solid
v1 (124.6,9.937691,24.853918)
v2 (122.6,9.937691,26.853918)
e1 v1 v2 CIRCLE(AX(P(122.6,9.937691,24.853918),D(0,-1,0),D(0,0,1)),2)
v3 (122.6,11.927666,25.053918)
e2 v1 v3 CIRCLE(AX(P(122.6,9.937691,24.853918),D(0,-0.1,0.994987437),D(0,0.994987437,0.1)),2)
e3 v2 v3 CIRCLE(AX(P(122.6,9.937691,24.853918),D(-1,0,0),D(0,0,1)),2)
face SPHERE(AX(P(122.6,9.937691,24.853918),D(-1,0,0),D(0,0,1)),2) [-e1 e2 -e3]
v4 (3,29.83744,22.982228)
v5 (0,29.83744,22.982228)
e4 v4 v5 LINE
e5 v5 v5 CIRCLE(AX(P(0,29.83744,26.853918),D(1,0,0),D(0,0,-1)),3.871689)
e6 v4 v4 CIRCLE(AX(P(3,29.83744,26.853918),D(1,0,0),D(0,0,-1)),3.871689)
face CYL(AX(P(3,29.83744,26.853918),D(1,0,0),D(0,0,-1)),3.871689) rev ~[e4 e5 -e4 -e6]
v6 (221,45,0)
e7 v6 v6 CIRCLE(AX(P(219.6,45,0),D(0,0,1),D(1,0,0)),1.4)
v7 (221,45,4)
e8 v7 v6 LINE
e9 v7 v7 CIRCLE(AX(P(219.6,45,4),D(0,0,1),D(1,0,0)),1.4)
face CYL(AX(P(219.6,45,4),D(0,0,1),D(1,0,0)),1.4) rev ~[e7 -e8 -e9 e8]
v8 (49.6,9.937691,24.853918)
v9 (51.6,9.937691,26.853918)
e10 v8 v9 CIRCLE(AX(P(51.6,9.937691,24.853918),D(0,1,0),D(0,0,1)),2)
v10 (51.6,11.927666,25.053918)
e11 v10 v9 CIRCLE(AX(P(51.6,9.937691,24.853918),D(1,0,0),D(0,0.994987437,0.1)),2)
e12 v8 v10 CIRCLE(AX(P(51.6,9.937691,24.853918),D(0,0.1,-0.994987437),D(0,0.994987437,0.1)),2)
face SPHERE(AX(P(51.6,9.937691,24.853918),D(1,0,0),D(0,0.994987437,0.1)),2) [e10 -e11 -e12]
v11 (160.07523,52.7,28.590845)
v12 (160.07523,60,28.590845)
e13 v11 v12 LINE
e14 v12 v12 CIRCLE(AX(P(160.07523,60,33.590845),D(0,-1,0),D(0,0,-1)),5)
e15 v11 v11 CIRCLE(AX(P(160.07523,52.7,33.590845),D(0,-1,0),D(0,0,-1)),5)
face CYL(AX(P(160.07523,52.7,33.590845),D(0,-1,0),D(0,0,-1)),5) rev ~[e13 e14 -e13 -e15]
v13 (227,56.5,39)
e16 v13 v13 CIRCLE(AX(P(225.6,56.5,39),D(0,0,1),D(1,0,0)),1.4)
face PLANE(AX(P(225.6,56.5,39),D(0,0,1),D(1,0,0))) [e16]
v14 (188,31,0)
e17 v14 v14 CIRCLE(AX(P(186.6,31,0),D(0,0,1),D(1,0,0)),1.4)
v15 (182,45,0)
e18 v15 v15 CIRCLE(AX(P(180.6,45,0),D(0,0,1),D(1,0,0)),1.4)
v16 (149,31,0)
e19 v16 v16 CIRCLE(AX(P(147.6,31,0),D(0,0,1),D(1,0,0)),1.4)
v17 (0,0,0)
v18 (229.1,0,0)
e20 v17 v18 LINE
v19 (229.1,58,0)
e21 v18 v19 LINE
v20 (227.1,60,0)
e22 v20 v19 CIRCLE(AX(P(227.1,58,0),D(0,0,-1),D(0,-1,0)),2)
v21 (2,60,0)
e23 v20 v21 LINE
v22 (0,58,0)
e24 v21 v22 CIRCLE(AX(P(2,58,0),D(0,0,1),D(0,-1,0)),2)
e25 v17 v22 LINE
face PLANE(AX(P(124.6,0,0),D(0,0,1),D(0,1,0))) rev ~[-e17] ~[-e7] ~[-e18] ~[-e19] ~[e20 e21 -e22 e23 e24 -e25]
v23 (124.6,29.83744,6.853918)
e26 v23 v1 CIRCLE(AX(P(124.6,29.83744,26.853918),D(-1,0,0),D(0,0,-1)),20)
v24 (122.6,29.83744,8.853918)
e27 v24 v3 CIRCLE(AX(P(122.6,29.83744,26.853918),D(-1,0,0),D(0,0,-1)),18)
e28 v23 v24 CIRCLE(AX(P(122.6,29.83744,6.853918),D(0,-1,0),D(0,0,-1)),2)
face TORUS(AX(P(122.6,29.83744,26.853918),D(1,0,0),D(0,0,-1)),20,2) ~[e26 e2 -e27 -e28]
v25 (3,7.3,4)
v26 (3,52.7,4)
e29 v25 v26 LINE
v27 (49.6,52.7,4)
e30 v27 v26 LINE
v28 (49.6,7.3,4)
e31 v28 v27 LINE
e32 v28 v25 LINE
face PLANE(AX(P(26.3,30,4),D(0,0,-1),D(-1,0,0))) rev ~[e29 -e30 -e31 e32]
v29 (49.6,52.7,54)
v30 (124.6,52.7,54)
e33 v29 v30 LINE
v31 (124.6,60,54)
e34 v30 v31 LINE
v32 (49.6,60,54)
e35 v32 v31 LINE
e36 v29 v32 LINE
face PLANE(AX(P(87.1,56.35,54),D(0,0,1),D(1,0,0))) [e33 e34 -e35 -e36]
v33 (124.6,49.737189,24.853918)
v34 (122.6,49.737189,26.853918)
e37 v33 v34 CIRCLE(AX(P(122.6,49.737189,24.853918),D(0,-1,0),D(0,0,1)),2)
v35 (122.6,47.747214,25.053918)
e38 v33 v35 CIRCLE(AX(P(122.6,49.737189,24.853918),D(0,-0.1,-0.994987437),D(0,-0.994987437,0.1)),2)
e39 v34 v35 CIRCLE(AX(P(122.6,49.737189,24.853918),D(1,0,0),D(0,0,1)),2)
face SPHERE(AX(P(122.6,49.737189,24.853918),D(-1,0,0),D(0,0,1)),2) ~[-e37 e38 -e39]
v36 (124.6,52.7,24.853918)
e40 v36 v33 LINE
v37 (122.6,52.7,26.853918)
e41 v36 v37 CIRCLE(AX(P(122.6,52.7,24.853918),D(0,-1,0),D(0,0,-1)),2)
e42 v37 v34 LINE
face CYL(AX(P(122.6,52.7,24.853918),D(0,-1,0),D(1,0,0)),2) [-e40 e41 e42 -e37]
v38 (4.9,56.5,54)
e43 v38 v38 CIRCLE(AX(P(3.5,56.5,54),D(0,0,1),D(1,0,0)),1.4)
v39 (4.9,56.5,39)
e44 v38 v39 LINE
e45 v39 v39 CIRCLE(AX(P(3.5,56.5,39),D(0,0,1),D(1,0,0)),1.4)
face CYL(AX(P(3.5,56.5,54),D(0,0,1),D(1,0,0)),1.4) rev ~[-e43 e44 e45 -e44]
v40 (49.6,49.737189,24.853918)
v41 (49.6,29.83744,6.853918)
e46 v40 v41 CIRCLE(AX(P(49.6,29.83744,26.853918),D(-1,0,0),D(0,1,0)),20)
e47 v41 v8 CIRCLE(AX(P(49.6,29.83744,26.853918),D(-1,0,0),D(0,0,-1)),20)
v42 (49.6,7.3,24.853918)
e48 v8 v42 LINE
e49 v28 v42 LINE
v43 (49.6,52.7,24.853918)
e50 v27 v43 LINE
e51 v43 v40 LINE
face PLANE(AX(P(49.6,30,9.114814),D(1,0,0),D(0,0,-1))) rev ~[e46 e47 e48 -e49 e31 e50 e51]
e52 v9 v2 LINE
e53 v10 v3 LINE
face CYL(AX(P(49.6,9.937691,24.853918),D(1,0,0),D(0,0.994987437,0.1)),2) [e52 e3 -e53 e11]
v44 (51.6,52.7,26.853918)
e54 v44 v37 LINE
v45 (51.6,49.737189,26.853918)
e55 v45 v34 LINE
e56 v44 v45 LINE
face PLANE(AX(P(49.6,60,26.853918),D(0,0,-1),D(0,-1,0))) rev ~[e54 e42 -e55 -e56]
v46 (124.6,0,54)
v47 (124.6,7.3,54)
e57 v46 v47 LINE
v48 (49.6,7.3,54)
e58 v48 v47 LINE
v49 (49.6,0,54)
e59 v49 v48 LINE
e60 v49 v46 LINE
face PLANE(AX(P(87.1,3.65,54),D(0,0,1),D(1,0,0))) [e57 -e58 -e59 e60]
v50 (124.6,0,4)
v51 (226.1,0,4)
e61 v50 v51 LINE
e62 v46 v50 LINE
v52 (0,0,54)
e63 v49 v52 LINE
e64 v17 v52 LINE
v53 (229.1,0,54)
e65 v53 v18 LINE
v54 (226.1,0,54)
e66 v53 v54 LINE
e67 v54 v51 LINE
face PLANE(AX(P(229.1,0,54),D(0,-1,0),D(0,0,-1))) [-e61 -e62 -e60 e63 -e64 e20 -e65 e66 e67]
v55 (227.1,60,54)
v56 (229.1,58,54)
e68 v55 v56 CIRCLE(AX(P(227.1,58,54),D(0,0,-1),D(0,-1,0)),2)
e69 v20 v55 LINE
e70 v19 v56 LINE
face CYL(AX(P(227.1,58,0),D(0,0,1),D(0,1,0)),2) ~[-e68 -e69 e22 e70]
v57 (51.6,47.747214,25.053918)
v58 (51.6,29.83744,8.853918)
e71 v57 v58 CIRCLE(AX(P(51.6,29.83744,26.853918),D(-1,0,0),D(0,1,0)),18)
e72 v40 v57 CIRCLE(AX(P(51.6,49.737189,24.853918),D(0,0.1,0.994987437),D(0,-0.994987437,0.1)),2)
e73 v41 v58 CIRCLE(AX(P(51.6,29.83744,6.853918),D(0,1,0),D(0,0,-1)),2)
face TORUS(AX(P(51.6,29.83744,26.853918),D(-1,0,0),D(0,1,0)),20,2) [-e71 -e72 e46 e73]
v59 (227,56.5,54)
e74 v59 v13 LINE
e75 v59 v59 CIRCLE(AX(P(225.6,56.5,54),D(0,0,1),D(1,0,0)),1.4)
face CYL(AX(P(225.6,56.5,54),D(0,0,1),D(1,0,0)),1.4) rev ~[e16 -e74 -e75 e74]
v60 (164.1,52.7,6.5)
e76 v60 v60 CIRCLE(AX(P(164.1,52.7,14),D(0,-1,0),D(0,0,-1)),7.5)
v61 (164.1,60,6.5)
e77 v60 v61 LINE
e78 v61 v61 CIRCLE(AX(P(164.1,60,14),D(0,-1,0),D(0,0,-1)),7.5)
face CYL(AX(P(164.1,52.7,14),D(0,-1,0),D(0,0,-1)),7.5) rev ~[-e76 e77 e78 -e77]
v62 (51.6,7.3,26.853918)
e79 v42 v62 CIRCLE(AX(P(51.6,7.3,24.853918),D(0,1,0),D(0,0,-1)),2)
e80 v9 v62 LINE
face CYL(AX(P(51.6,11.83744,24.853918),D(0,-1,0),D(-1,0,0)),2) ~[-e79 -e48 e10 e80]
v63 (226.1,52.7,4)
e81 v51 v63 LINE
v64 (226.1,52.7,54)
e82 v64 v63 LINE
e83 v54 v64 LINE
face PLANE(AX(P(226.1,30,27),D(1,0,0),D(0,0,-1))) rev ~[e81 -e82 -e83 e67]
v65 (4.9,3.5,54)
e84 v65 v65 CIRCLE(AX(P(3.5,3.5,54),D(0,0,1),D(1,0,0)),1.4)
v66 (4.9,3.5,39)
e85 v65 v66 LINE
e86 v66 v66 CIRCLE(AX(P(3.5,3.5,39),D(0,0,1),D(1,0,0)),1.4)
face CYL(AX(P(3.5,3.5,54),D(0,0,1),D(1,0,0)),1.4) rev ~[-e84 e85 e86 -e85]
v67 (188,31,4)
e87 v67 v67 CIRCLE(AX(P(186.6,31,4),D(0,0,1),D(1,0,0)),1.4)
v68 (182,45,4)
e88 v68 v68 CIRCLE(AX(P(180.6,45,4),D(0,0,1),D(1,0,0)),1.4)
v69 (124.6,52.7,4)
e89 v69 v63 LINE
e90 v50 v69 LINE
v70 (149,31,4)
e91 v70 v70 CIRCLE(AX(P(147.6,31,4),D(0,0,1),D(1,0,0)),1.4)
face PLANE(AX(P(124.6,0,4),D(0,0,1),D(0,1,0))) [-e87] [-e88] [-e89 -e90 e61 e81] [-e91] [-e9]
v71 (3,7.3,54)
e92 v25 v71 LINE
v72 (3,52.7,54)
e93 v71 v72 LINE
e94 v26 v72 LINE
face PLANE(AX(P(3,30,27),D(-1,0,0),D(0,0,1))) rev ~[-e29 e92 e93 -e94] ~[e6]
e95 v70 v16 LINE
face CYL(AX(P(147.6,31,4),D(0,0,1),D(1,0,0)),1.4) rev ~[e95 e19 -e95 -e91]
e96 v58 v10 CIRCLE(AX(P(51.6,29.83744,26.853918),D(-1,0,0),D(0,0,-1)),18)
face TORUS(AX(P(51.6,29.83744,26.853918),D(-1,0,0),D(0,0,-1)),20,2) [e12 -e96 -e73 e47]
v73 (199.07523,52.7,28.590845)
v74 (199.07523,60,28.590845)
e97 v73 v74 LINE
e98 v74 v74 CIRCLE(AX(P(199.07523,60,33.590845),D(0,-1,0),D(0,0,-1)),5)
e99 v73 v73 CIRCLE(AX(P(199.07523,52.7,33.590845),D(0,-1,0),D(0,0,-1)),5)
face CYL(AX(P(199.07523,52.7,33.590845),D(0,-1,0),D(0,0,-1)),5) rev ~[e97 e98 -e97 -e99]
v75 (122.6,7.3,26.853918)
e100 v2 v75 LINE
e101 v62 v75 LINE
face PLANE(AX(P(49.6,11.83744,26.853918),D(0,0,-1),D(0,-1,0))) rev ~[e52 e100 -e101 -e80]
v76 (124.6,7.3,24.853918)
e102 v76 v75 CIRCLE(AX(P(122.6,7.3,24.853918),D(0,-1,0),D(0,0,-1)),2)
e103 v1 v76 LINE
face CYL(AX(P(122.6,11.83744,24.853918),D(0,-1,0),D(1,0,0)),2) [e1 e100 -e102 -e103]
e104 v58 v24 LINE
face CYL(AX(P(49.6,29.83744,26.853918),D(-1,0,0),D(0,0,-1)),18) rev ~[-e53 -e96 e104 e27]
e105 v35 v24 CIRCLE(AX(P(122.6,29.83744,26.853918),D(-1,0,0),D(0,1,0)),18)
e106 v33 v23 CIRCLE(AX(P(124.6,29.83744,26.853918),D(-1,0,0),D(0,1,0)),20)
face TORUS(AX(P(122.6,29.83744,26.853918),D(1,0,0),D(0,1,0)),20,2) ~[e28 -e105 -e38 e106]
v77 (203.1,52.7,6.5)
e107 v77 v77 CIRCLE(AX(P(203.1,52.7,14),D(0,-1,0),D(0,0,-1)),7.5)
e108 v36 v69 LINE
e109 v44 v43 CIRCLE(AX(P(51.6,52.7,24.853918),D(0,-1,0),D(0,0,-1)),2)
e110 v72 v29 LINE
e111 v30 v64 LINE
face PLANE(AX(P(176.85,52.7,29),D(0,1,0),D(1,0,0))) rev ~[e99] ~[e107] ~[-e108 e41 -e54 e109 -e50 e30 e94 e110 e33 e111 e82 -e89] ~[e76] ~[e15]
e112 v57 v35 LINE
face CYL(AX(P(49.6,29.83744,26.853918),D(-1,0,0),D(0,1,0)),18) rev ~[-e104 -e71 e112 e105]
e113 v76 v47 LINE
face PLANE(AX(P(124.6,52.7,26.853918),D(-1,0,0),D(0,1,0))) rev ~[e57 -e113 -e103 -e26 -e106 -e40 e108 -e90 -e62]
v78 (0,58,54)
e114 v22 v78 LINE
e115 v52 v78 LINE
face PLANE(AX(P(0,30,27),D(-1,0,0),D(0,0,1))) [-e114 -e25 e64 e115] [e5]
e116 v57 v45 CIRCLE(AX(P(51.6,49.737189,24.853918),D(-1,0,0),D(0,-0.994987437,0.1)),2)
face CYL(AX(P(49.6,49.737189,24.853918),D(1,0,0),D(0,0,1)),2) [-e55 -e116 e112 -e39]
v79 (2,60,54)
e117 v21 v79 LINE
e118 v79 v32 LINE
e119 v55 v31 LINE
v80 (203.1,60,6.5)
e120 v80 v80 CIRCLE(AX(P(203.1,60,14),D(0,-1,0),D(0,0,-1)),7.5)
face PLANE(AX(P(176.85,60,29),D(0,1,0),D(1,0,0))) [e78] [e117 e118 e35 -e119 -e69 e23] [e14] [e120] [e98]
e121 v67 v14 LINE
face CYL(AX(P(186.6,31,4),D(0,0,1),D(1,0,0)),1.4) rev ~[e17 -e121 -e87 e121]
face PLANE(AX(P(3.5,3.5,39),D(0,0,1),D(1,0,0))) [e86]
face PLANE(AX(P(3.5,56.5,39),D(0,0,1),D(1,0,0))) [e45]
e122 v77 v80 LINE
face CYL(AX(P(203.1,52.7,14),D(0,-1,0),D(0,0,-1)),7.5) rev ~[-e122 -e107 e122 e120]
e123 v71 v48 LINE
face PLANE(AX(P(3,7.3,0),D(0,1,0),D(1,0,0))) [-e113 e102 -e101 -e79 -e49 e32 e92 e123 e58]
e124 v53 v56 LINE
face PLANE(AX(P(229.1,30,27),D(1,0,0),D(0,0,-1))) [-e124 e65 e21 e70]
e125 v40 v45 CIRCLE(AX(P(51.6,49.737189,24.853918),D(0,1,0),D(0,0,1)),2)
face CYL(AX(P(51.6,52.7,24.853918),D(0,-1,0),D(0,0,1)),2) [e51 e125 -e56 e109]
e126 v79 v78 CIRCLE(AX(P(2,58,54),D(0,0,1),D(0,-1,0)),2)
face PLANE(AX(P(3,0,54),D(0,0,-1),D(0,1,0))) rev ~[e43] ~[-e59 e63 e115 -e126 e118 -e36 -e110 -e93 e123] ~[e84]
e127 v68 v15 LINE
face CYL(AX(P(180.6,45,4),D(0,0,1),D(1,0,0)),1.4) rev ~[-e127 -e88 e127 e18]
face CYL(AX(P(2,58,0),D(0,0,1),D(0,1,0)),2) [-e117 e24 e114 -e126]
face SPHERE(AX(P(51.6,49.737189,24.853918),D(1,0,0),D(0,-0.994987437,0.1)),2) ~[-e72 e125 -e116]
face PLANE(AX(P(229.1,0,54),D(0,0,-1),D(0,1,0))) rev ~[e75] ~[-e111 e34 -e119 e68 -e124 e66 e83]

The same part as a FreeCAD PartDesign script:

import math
import FreeCAD as App
import Part
import Sketcher
from FreeCAD import Vector


def edges_at(feature, points):
    """Names of the edges that pass closest to the given points."""
    edges = feature.Shape.Edges
    near = lambda p: min(range(len(edges)), key=lambda i: edges[i].distToShape(Part.Vertex(*p))[0])
    return sorted({f"Edge{near(p) + 1}" for p in points})

doc = App.newDocument("Part")
params = doc.addObject("Spreadsheet::Sheet", "Params")
for row, (alias, value) in enumerate([
    ("sketch1_width", "46.6 mm"),
    ("sketch1_height", "7.3 mm"),
    ("pad1_length", "54 mm"),
    ("sketch2_width", "46.6 mm"),
    ("sketch2_height", "7.3 mm"),
    ("pad2_length", "54 mm"),
    ("sketch3_width", "46.6 mm"),
    ("sketch3_height", "45.4 mm"),
    ("pad3_length", "4 mm"),
    ("sketch4_width", "60 mm"),
    ("sketch4_height", "54 mm"),
    ("pad4_length", "3 mm"),
    ("pocket1_length", "3 mm"),
    ("sketch6_radius", "18 mm"),
    ("sketch6_width", "60 mm"),
    ("pad5_length", "75 mm"),
    ("sketch7_width", "75 mm"),
    ("sketch7_height", "7.3 mm"),
    ("pad6_length", "27.146082 mm"),
    ("sketch8_width", "60 mm"),
    ("sketch8_height", "4 mm"),
    ("pad7_length", "104.5 mm"),
    ("sketch9_diameter", "2.8 mm"),
    ("pocket2_length", "75 mm"),
    ("sketch10_height", "50 mm"),
    ("sketch10_width", "104.5 mm"),
    ("pad8_length", "7.3 mm"),
    ("sketch11_diameter", "15 mm"),
    ("sketch11_diameter2", "10 mm"),
    ("pocket3_length", "16 mm"),
    ("sketch12_width", "60 mm"),
    ("sketch12_height", "54 mm"),
    ("pad9_length", "3 mm"),
    ("sketch13_diameter", "2.8 mm"),
    ("pocket4_length", "15 mm"),
    ("fillet_radius", "2 mm"),
    ("fillet2_radius", "2 mm"),
], start=1):
    params.set(f"A{row}", alias)
    params.set(f"B{row}", "=" + value)
    params.setAlias(f"B{row}", alias)

body = doc.addObject("PartDesign::Body", "Body")

# Sketch on XY plane
sketch1 = doc.addObject("Sketcher::SketchObject", "Sketch")
body.addObject(sketch1)
sketch1.AttachmentSupport = (doc.XY_Plane, [""])
sketch1.MapMode = "FlatFace"
sketch1.addGeometry([
    Part.LineSegment(Vector(3, 7, 0), Vector(3, 0, 0)),
    Part.LineSegment(Vector(3, 0, 0), Vector(50, 0, 0)),
    Part.LineSegment(Vector(50, 0, 0), Vector(50, 7, 0)),
    Part.LineSegment(Vector(50, 7, 0), Vector(3, 7, 0)),
], False)
sketch1.addConstraint([
    Sketcher.Constraint("Coincident", 0, 2, 1, 1),
    Sketcher.Constraint("Coincident", 1, 2, 2, 1),
    Sketcher.Constraint("Coincident", 2, 2, 3, 1),
    Sketcher.Constraint("Coincident", 3, 2, 0, 1),
    Sketcher.Constraint("Vertical", 0),
    Sketcher.Constraint("Horizontal", 1),
    Sketcher.Constraint("Vertical", 2),
    Sketcher.Constraint("Horizontal", 3),
    Sketcher.Constraint("PointOnObject", 0, 2, -1),
    Sketcher.Constraint("DistanceX", 1, 1, 1, 2, 46.6),
    Sketcher.Constraint("DistanceY", 0, 2, 0, 1, 7.3),
    Sketcher.Constraint("DistanceX", -1, 1, 0, 2, 3.0),
])
sketch1.setExpression("Constraints[9]", "Params.sketch1_width")
sketch1.setExpression("Constraints[10]", "Params.sketch1_height")
pad1 = doc.addObject("PartDesign::Pad", "Pad")
body.addObject(pad1)
pad1.Profile = sketch1
pad1.setExpression("Length", "Params.pad1_length")
body2 = doc.addObject("PartDesign::Body", "Body001")

# Sketch on XY plane
sketch2 = doc.addObject("Sketcher::SketchObject", "Sketch001")
body2.addObject(sketch2)
sketch2.AttachmentSupport = (doc.getObject("XY_Plane001"), [""])
sketch2.MapMode = "FlatFace"
sketch2.addGeometry([
    Part.LineSegment(Vector(3, 60, 0), Vector(3, 53, 0)),
    Part.LineSegment(Vector(3, 53, 0), Vector(50, 53, 0)),
    Part.LineSegment(Vector(50, 53, 0), Vector(50, 60, 0)),
    Part.LineSegment(Vector(50, 60, 0), Vector(3, 60, 0)),
], False)
sketch2.addConstraint([
    Sketcher.Constraint("Coincident", 0, 2, 1, 1),
    Sketcher.Constraint("Coincident", 1, 2, 2, 1),
    Sketcher.Constraint("Coincident", 2, 2, 3, 1),
    Sketcher.Constraint("Coincident", 3, 2, 0, 1),
    Sketcher.Constraint("Vertical", 0),
    Sketcher.Constraint("Horizontal", 1),
    Sketcher.Constraint("Vertical", 2),
    Sketcher.Constraint("Horizontal", 3),
    Sketcher.Constraint("DistanceX", 1, 1, 1, 2, 46.6),
    Sketcher.Constraint("DistanceY", 0, 2, 0, 1, 7.3),
    Sketcher.Constraint("DistanceX", -1, 1, 0, 2, 3.0),
    Sketcher.Constraint("DistanceY", -1, 1, 2, 2, 60.0),
])
sketch2.setExpression("Constraints[8]", "Params.sketch2_width")
sketch2.setExpression("Constraints[9]", "Params.sketch2_height")
pad2 = doc.addObject("PartDesign::Pad", "Pad001")
body2.addObject(pad2)
pad2.Profile = sketch2
pad2.setExpression("Length", "Params.pad2_length")
body.AllowCompound = True
doc.recompute()

boolean = doc.addObject("PartDesign::Boolean", "Boolean")
body.addObject(boolean)
boolean.Type = "Fuse"
boolean.addObjects([body2])

# Sketch on XY plane
sketch3 = doc.addObject("Sketcher::SketchObject", "Sketch002")
body.addObject(sketch3)
sketch3.AttachmentSupport = (doc.XY_Plane, [""])
sketch3.MapMode = "FlatFace"
sketch3.addGeometry([
    Part.LineSegment(Vector(50, 53, 0), Vector(50, 7, 0)),
    Part.LineSegment(Vector(50, 7, 0), Vector(3, 7, 0)),
    Part.LineSegment(Vector(3, 7, 0), Vector(3, 53, 0)),
    Part.LineSegment(Vector(3, 53, 0), Vector(50, 53, 0)),
], False)
sketch3.addConstraint([
    Sketcher.Constraint("Coincident", 0, 2, 1, 1),
    Sketcher.Constraint("Coincident", 1, 2, 2, 1),
    Sketcher.Constraint("Coincident", 2, 2, 3, 1),
    Sketcher.Constraint("Coincident", 3, 2, 0, 1),
    Sketcher.Constraint("Vertical", 0),
    Sketcher.Constraint("Horizontal", 1),
    Sketcher.Constraint("Vertical", 2),
    Sketcher.Constraint("Horizontal", 3),
    Sketcher.Constraint("DistanceX", 1, 2, 1, 1, 46.6),
    Sketcher.Constraint("DistanceY", 0, 2, 0, 1, 45.4),
    Sketcher.Constraint("DistanceX", -1, 1, 1, 2, 3.0),
    Sketcher.Constraint("DistanceY", -1, 1, 0, 2, 7.3),
])
sketch3.setExpression("Constraints[8]", "Params.sketch3_width")
sketch3.setExpression("Constraints[9]", "Params.sketch3_height")
pad3 = doc.addObject("PartDesign::Pad", "Pad002")
body.addObject(pad3)
pad3.Profile = sketch3
pad3.setExpression("Length", "Params.pad3_length")

# Sketch on YZ plane
sketch4 = doc.addObject("Sketcher::SketchObject", "Sketch003")
body.addObject(sketch4)
sketch4.AttachmentSupport = (doc.YZ_Plane, [""])
sketch4.MapMode = "FlatFace"
sketch4.AttachmentOffset = App.Placement(Vector(0, 0, 3), App.Rotation())
sketch4.addGeometry([
    Part.LineSegment(Vector(60, 0, 0), Vector(0, 0, 0)),
    Part.LineSegment(Vector(0, 0, 0), Vector(0, 54, 0)),
    Part.LineSegment(Vector(0, 54, 0), Vector(60, 54, 0)),
    Part.LineSegment(Vector(60, 54, 0), Vector(60, 0, 0)),
], False)
sketch4.addConstraint([
    Sketcher.Constraint("Coincident", 0, 2, 1, 1),
    Sketcher.Constraint("Coincident", 1, 2, 2, 1),
    Sketcher.Constraint("Coincident", 2, 2, 3, 1),
    Sketcher.Constraint("Coincident", 3, 2, 0, 1),
    Sketcher.Constraint("Horizontal", 0),
    Sketcher.Constraint("Vertical", 1),
    Sketcher.Constraint("Horizontal", 2),
    Sketcher.Constraint("Vertical", 3),
    Sketcher.Constraint("Coincident", 0, 2, -1, 1),
    Sketcher.Constraint("DistanceX", 0, 2, 0, 1, 60.0),
    Sketcher.Constraint("DistanceY", 1, 1, 1, 2, 54.0),
])
sketch4.setExpression("Constraints[9]", "Params.sketch4_width")
sketch4.setExpression("Constraints[10]", "Params.sketch4_height")
pad4 = doc.addObject("PartDesign::Pad", "Pad003")
body.addObject(pad4)
pad4.Profile = sketch4
pad4.setExpression("Length", "Params.pad4_length")
pad4.Reversed = True

# Sketch on YZ plane
sketch5 = doc.addObject("Sketcher::SketchObject", "Sketch004")
body.addObject(sketch5)
sketch5.AttachmentSupport = (doc.YZ_Plane, [""])
sketch5.MapMode = "FlatFace"
sketch5.AttachmentOffset = App.Placement(Vector(0, 0, 3), App.Rotation())
sketch5.addGeometry(Part.Circle(Vector(29.8, 26.9, 0), Vector(0, 0, 1), 3.9), False)
sketch5.addConstraint([
    Sketcher.Constraint("Diameter", 0, 7.743379),
    Sketcher.Constraint("DistanceX", -1, 1, 0, 3, 29.83744),
    Sketcher.Constraint("DistanceY", -1, 1, 0, 3, 26.853918),
])
pocket1 = doc.addObject("PartDesign::Pocket", "Pocket")
body.addObject(pocket1)
pocket1.Profile = sketch5
pocket1.setExpression("Length", "Params.pocket1_length")

# Sketch on YZ plane
sketch6 = doc.addObject("Sketcher::SketchObject", "Sketch005")
body.addObject(sketch6)
sketch6.AttachmentSupport = (doc.YZ_Plane, [""])
sketch6.MapMode = "FlatFace"
sketch6.AttachmentOffset = App.Placement(Vector(0, 0, 49.6), App.Rotation())
sketch6.addGeometry([
    Part.LineSegment(Vector(0, 0, 0), Vector(60, 0, 0)),  # 0
    Part.LineSegment(Vector(60, 0, 0), Vector(60, 27, 0)),  # 1
    Part.LineSegment(Vector(60, 27, 0), Vector(48, 27, 0)),  # 2
    Part.ArcOfCircle(Part.Circle(Vector(30, 27, 0), Vector(0, 0, 1), 18), math.radians(-90), math.radians(0)),  # 3
    Part.ArcOfCircle(Part.Circle(Vector(30, 27, 0), Vector(0, 0, 1), 18), math.radians(-180), math.radians(-90)),  # 4
    Part.LineSegment(Vector(12, 27, 0), Vector(0, 27, 0)),  # 5
    Part.LineSegment(Vector(0, 27, 0), Vector(0, 0, 0)),  # 6
], False)
sketch6.addConstraint([
    Sketcher.Constraint("Coincident", 0, 2, 1, 1),
    Sketcher.Constraint("Coincident", 1, 2, 2, 1),
    Sketcher.Constraint("Coincident", 2, 2, 3, 2),
    Sketcher.Constraint("Tangent", 3, 1, 4, 2),
    Sketcher.Constraint("Coincident", 4, 1, 5, 1),
    Sketcher.Constraint("Coincident", 5, 2, 6, 1),
    Sketcher.Constraint("Coincident", 6, 2, 0, 1),
    Sketcher.Constraint("Horizontal", 0),
    Sketcher.Constraint("Vertical", 1),
    Sketcher.Constraint("Horizontal", 2),
    Sketcher.Constraint("Horizontal", 5),
    Sketcher.Constraint("Vertical", 6),
    Sketcher.Constraint("Coincident", 6, 2, -1, 1),
    Sketcher.Constraint("Equal", 3, 4),
    Sketcher.Constraint("Horizontal", 4, 3, 1, 2),
    Sketcher.Constraint("Horizontal", 2, 2, 4, 1),
    Sketcher.Constraint("Vertical", 4, 3, 3, 1),
    Sketcher.Constraint("Radius", 3, 18.0),
    Sketcher.Constraint("DistanceX", 0, 1, 0, 2, 60.0),
    Sketcher.Constraint("DistanceX", 2, 2, 2, 1, 12.16256),
    Sketcher.Constraint("DistanceY", 1, 1, 1, 2, 26.853918),
])
sketch6.setExpression("Constraints[17]", "Params.sketch6_radius")
sketch6.setExpression("Constraints[18]", "Params.sketch6_width")
pad5 = doc.addObject("PartDesign::Pad", "Pad004")
body.addObject(pad5)
pad5.Profile = sketch6
pad5.setExpression("Length", "Params.pad5_length")

# Sketch on XY plane
sketch7 = doc.addObject("Sketcher::SketchObject", "Sketch006")
body.addObject(sketch7)
sketch7.AttachmentSupport = (doc.XY_Plane, [""])
sketch7.MapMode = "FlatFace"
sketch7.AttachmentOffset = App.Placement(Vector(0, 0, 26.853918), App.Rotation())
sketch7.addGeometry([
    Part.LineSegment(Vector(50, 60, 0), Vector(50, 53, 0)),  # 0
    Part.LineSegment(Vector(50, 53, 0), Vector(125, 53, 0)),  # 1
    Part.LineSegment(Vector(125, 53, 0), Vector(125, 60, 0)),  # 2
    Part.LineSegment(Vector(125, 60, 0), Vector(50, 60, 0)),  # 3
    Part.LineSegment(Vector(50, 7, 0), Vector(50, 0, 0)),  # 4
    Part.LineSegment(Vector(50, 0, 0), Vector(125, 0, 0)),  # 5
    Part.LineSegment(Vector(125, 0, 0), Vector(125, 7, 0)),  # 6
    Part.LineSegment(Vector(125, 7, 0), Vector(50, 7, 0)),  # 7
], False)
sketch7.addConstraint([
    Sketcher.Constraint("Coincident", 0, 2, 1, 1),
    Sketcher.Constraint("Coincident", 1, 2, 2, 1),
    Sketcher.Constraint("Coincident", 2, 2, 3, 1),
    Sketcher.Constraint("Coincident", 3, 2, 0, 1),
    Sketcher.Constraint("Coincident", 4, 2, 5, 1),
    Sketcher.Constraint("Coincident", 5, 2, 6, 1),
    Sketcher.Constraint("Coincident", 6, 2, 7, 1),
    Sketcher.Constraint("Coincident", 7, 2, 4, 1),
    Sketcher.Constraint("Vertical", 0),
    Sketcher.Constraint("Horizontal", 1),
    Sketcher.Constraint("Vertical", 2),
    Sketcher.Constraint("Horizontal", 3),
    Sketcher.Constraint("Vertical", 4),
    Sketcher.Constraint("Horizontal", 5),
    Sketcher.Constraint("Vertical", 6),
    Sketcher.Constraint("Horizontal", 7),
    Sketcher.Constraint("PointOnObject", 4, 2, -1),
    Sketcher.Constraint("Vertical", 3, 2, 4, 2),
    Sketcher.Constraint("Vertical", 2, 2, 5, 2),
    Sketcher.Constraint("Equal", 2, 4),
    Sketcher.Constraint("DistanceX", 1, 1, 1, 2, 75.0),
    Sketcher.Constraint("DistanceY", 0, 2, 0, 1, 7.3),
    Sketcher.Constraint("DistanceY", -1, 1, 2, 2, 60.0),
    Sketcher.Constraint("DistanceX", -1, 1, 0, 2, 49.6),
])
sketch7.setExpression("Constraints[20]", "Params.sketch7_width")
sketch7.setExpression("Constraints[21]", "Params.sketch7_height")
pad6 = doc.addObject("PartDesign::Pad", "Pad005")
body.addObject(pad6)
pad6.Profile = sketch7
pad6.setExpression("Length", "Params.pad6_length")

# Sketch on YZ plane
sketch8 = doc.addObject("Sketcher::SketchObject", "Sketch007")
body.addObject(sketch8)
sketch8.AttachmentSupport = (doc.YZ_Plane, [""])
sketch8.MapMode = "FlatFace"
sketch8.AttachmentOffset = App.Placement(Vector(0, 0, 124.6), App.Rotation())
sketch8.addGeometry([
    Part.LineSegment(Vector(60, 4, 0), Vector(0, 4, 0)),
    Part.LineSegment(Vector(0, 4, 0), Vector(0, 0, 0)),
    Part.LineSegment(Vector(0, 0, 0), Vector(60, 0, 0)),
    Part.LineSegment(Vector(60, 0, 0), Vector(60, 4, 0)),
], False)
sketch8.addConstraint([
    Sketcher.Constraint("Coincident", 0, 2, 1, 1),
    Sketcher.Constraint("Coincident", 1, 2, 2, 1),
    Sketcher.Constraint("Coincident", 2, 2, 3, 1),
    Sketcher.Constraint("Coincident", 3, 2, 0, 1),
    Sketcher.Constraint("Horizontal", 0),
    Sketcher.Constraint("Vertical", 1),
    Sketcher.Constraint("Horizontal", 2),
    Sketcher.Constraint("Vertical", 3),
    Sketcher.Constraint("Coincident", 1, 2, -1, 1),
    Sketcher.Constraint("DistanceX", 0, 2, 0, 1, 60.0),
    Sketcher.Constraint("DistanceY", 1, 2, 1, 1, 4.0),
])
sketch8.setExpression("Constraints[9]", "Params.sketch8_width")
sketch8.setExpression("Constraints[10]", "Params.sketch8_height")
pad7 = doc.addObject("PartDesign::Pad", "Pad006")
body.addObject(pad7)
pad7.Profile = sketch8
pad7.setExpression("Length", "Params.pad7_length")

# Sketch on XY plane
sketch9 = doc.addObject("Sketcher::SketchObject", "Sketch008")
body.addObject(sketch9)
sketch9.AttachmentSupport = (doc.XY_Plane, [""])
sketch9.MapMode = "FlatFace"
sketch9.AttachmentOffset = App.Placement(Vector(0, 0, 4), App.Rotation())
sketch9.addGeometry([
    Part.Circle(Vector(147.6, 31, 0), Vector(0, 0, 1), 1.4),
    Part.Circle(Vector(180.6, 45, 0), Vector(0, 0, 1), 1.4),
    Part.Circle(Vector(186.6, 31, 0), Vector(0, 0, 1), 1.4),
    Part.Circle(Vector(219.6, 45, 0), Vector(0, 0, 1), 1.4),
], False)
sketch9.addConstraint([
    Sketcher.Constraint("Equal", 0, 1),
    Sketcher.Constraint("Equal", 1, 2),
    Sketcher.Constraint("Equal", 2, 3),
    Sketcher.Constraint("Horizontal", 0, 3, 2, 3),
    Sketcher.Constraint("Horizontal", 1, 3, 3, 3),
    Sketcher.Constraint("Diameter", 0, 2.8),
    Sketcher.Constraint("DistanceY", -1, 1, 0, 3, 31.0),
    Sketcher.Constraint("DistanceY", -1, 1, 1, 3, 45.0),
    Sketcher.Constraint("DistanceX", 0, 3, 1, 3, 33.0),
    Sketcher.Constraint("DistanceX", 1, 3, 2, 3, 6.0),
    Sketcher.Constraint("DistanceX", 2, 3, 3, 3, 33.0),
    Sketcher.Constraint("DistanceX", -1, 1, 0, 3, 147.6),
])
sketch9.setExpression("Constraints[5]", "Params.sketch9_diameter")
pocket2 = doc.addObject("PartDesign::Pocket", "Pocket001")
body.addObject(pocket2)
pocket2.Profile = sketch9
pocket2.setExpression("Length", "Params.pocket2_length")

# Sketch on XZ plane
sketch10 = doc.addObject("Sketcher::SketchObject", "Sketch009")
body.addObject(sketch10)
sketch10.AttachmentSupport = (doc.XZ_Plane, [""])
sketch10.MapMode = "FlatFace"
sketch10.AttachmentOffset = App.Placement(Vector(0, 0, -60), App.Rotation())
sketch10.addGeometry([
    Part.LineSegment(Vector(125, 4, 0), Vector(125, 54, 0)),
    Part.LineSegment(Vector(125, 54, 0), Vector(229, 54, 0)),
    Part.LineSegment(Vector(229, 54, 0), Vector(229, 4, 0)),
    Part.LineSegment(Vector(229, 4, 0), Vector(125, 4, 0)),
], False)
sketch10.addConstraint([
    Sketcher.Constraint("Coincident", 0, 2, 1, 1),
    Sketcher.Constraint("Coincident", 1, 2, 2, 1),
    Sketcher.Constraint("Coincident", 2, 2, 3, 1),
    Sketcher.Constraint("Coincident", 3, 2, 0, 1),
    Sketcher.Constraint("Vertical", 0),
    Sketcher.Constraint("Horizontal", 1),
    Sketcher.Constraint("Vertical", 2),
    Sketcher.Constraint("Horizontal", 3),
    Sketcher.Constraint("DistanceY", 0, 1, 0, 2, 50.0),
    Sketcher.Constraint("DistanceX", 1, 1, 1, 2, 104.5),
    Sketcher.Constraint("DistanceY", -1, 1, 0, 2, 54.0),
    Sketcher.Constraint("DistanceX", -1, 1, 0, 2, 124.6),
])
sketch10.setExpression("Constraints[8]", "Params.sketch10_height")
sketch10.setExpression("Constraints[9]", "Params.sketch10_width")
pad8 = doc.addObject("PartDesign::Pad", "Pad007")
body.addObject(pad8)
pad8.Profile = sketch10
pad8.setExpression("Length", "Params.pad8_length")

# Sketch on XZ plane
sketch11 = doc.addObject("Sketcher::SketchObject", "Sketch010")
body.addObject(sketch11)
sketch11.AttachmentSupport = (doc.XZ_Plane, [""])
sketch11.MapMode = "FlatFace"
sketch11.AttachmentOffset = App.Placement(Vector(0, 0, -52.7), App.Rotation())
sketch11.addGeometry([
    Part.Circle(Vector(164, 14, 0), Vector(0, 0, 1), 8),
    Part.Circle(Vector(203, 14, 0), Vector(0, 0, 1), 8),
    Part.Circle(Vector(199, 34, 0), Vector(0, 0, 1), 5),
    Part.Circle(Vector(160, 34, 0), Vector(0, 0, 1), 5),
], False)
sketch11.addConstraint([
    Sketcher.Constraint("Equal", 0, 1),
    Sketcher.Constraint("Equal", 2, 3),
    Sketcher.Constraint("Horizontal", 0, 3, 1, 3),
    Sketcher.Constraint("Horizontal", 2, 3, 3, 3),
    Sketcher.Constraint("Diameter", 0, 15.0),
    Sketcher.Constraint("Diameter", 2, 10.0),
    Sketcher.Constraint("DistanceY", -1, 1, 0, 3, 14.0),
    Sketcher.Constraint("DistanceX", 0, 3, 1, 3, 39.0),
    Sketcher.Constraint("DistanceX", 3, 3, 2, 3, 39.0),
    Sketcher.Constraint("DistanceX", -1, 1, 0, 3, 164.1),
    Sketcher.Constraint("DistanceX", -1, 1, 2, 3, 199.07523),
    Sketcher.Constraint("DistanceY", -1, 1, 2, 3, 33.590845),
])
sketch11.setExpression("Constraints[4]", "Params.sketch11_diameter")
sketch11.setExpression("Constraints[5]", "Params.sketch11_diameter2")
pocket3 = doc.addObject("PartDesign::Pocket", "Pocket002")
body.addObject(pocket3)
pocket3.Profile = sketch11
pocket3.setExpression("Length", "Params.pocket3_length")

# Sketch on YZ plane
sketch12 = doc.addObject("Sketcher::SketchObject", "Sketch011")
body.addObject(sketch12)
sketch12.AttachmentSupport = (doc.YZ_Plane, [""])
sketch12.MapMode = "FlatFace"
sketch12.AttachmentOffset = App.Placement(Vector(0, 0, 229.1), App.Rotation())
sketch12.addGeometry([
    Part.LineSegment(Vector(60, 54, 0), Vector(0, 54, 0)),
    Part.LineSegment(Vector(0, 54, 0), Vector(0, 0, 0)),
    Part.LineSegment(Vector(0, 0, 0), Vector(60, 0, 0)),
    Part.LineSegment(Vector(60, 0, 0), Vector(60, 54, 0)),
], False)
sketch12.addConstraint([
    Sketcher.Constraint("Coincident", 0, 2, 1, 1),
    Sketcher.Constraint("Coincident", 1, 2, 2, 1),
    Sketcher.Constraint("Coincident", 2, 2, 3, 1),
    Sketcher.Constraint("Coincident", 3, 2, 0, 1),
    Sketcher.Constraint("Horizontal", 0),
    Sketcher.Constraint("Vertical", 1),
    Sketcher.Constraint("Horizontal", 2),
    Sketcher.Constraint("Vertical", 3),
    Sketcher.Constraint("Coincident", 1, 2, -1, 1),
    Sketcher.Constraint("DistanceX", 0, 2, 0, 1, 60.0),
    Sketcher.Constraint("DistanceY", 1, 2, 1, 1, 54.0),
])
sketch12.setExpression("Constraints[9]", "Params.sketch12_width")
sketch12.setExpression("Constraints[10]", "Params.sketch12_height")
pad9 = doc.addObject("PartDesign::Pad", "Pad008")
body.addObject(pad9)
pad9.Profile = sketch12
pad9.setExpression("Length", "Params.pad9_length")
pad9.Reversed = True

# Sketch on XY plane
sketch13 = doc.addObject("Sketcher::SketchObject", "Sketch012")
body.addObject(sketch13)
sketch13.AttachmentSupport = (doc.XY_Plane, [""])
sketch13.MapMode = "FlatFace"
sketch13.AttachmentOffset = App.Placement(Vector(0, 0, 54), App.Rotation())
sketch13.addGeometry([
    Part.Circle(Vector(3.5, 3.5, 0), Vector(0, 0, 1), 1.4),
    Part.Circle(Vector(3.5, 56.5, 0), Vector(0, 0, 1), 1.4),
    Part.Circle(Vector(225.6, 56.5, 0), Vector(0, 0, 1), 1.4),
], False)
sketch13.addConstraint([
    Sketcher.Constraint("Equal", 0, 1),
    Sketcher.Constraint("Equal", 1, 2),
    Sketcher.Constraint("Horizontal", 1, 3, 2, 3),
    Sketcher.Constraint("Vertical", 0, 3, 1, 3),
    Sketcher.Constraint("Diameter", 0, 2.8),
    Sketcher.Constraint("DistanceY", 0, 3, 1, 3, 53.0),
    Sketcher.Constraint("DistanceX", -1, 1, 0, 3, 3.5),
    Sketcher.Constraint("DistanceY", -1, 1, 0, 3, 3.5),
    Sketcher.Constraint("DistanceX", -1, 1, 2, 3, 225.6),
])
sketch13.setExpression("Constraints[4]", "Params.sketch13_diameter")
pocket4 = doc.addObject("PartDesign::Pocket", "Pocket003")
body.addObject(pocket4)
pocket4.Profile = sketch13
pocket4.setExpression("Length", "Params.pocket4_length")
doc.recompute()

fillet = doc.addObject("PartDesign::Fillet", "Fillet")
body.addObject(fillet)
fillet.Base = (pocket4, edges_at(pocket4, [
    (49.6, 17.11, 14.126),
    (49.6, 50.269, 26.854),
    (124.6, 42.565, 14.126),
    (87.1, 47.837, 26.854),
    (49.6, 9.569, 26.854),
    (87.1, 11.837, 26.854),
    (124.6, 9.569, 26.854),
    (124.6, 50.269, 26.854),
]))
fillet.setExpression("Radius", "Params.fillet_radius")
doc.recompute()

fillet2 = doc.addObject("PartDesign::Fillet", "Fillet001")
body.addObject(fillet2)
fillet2.Base = (fillet, edges_at(fillet, [(229.1, 60, 27), (0, 60, 27)]))
fillet2.setExpression("Radius", "Params.fillet2_radius")

doc.recompute()
